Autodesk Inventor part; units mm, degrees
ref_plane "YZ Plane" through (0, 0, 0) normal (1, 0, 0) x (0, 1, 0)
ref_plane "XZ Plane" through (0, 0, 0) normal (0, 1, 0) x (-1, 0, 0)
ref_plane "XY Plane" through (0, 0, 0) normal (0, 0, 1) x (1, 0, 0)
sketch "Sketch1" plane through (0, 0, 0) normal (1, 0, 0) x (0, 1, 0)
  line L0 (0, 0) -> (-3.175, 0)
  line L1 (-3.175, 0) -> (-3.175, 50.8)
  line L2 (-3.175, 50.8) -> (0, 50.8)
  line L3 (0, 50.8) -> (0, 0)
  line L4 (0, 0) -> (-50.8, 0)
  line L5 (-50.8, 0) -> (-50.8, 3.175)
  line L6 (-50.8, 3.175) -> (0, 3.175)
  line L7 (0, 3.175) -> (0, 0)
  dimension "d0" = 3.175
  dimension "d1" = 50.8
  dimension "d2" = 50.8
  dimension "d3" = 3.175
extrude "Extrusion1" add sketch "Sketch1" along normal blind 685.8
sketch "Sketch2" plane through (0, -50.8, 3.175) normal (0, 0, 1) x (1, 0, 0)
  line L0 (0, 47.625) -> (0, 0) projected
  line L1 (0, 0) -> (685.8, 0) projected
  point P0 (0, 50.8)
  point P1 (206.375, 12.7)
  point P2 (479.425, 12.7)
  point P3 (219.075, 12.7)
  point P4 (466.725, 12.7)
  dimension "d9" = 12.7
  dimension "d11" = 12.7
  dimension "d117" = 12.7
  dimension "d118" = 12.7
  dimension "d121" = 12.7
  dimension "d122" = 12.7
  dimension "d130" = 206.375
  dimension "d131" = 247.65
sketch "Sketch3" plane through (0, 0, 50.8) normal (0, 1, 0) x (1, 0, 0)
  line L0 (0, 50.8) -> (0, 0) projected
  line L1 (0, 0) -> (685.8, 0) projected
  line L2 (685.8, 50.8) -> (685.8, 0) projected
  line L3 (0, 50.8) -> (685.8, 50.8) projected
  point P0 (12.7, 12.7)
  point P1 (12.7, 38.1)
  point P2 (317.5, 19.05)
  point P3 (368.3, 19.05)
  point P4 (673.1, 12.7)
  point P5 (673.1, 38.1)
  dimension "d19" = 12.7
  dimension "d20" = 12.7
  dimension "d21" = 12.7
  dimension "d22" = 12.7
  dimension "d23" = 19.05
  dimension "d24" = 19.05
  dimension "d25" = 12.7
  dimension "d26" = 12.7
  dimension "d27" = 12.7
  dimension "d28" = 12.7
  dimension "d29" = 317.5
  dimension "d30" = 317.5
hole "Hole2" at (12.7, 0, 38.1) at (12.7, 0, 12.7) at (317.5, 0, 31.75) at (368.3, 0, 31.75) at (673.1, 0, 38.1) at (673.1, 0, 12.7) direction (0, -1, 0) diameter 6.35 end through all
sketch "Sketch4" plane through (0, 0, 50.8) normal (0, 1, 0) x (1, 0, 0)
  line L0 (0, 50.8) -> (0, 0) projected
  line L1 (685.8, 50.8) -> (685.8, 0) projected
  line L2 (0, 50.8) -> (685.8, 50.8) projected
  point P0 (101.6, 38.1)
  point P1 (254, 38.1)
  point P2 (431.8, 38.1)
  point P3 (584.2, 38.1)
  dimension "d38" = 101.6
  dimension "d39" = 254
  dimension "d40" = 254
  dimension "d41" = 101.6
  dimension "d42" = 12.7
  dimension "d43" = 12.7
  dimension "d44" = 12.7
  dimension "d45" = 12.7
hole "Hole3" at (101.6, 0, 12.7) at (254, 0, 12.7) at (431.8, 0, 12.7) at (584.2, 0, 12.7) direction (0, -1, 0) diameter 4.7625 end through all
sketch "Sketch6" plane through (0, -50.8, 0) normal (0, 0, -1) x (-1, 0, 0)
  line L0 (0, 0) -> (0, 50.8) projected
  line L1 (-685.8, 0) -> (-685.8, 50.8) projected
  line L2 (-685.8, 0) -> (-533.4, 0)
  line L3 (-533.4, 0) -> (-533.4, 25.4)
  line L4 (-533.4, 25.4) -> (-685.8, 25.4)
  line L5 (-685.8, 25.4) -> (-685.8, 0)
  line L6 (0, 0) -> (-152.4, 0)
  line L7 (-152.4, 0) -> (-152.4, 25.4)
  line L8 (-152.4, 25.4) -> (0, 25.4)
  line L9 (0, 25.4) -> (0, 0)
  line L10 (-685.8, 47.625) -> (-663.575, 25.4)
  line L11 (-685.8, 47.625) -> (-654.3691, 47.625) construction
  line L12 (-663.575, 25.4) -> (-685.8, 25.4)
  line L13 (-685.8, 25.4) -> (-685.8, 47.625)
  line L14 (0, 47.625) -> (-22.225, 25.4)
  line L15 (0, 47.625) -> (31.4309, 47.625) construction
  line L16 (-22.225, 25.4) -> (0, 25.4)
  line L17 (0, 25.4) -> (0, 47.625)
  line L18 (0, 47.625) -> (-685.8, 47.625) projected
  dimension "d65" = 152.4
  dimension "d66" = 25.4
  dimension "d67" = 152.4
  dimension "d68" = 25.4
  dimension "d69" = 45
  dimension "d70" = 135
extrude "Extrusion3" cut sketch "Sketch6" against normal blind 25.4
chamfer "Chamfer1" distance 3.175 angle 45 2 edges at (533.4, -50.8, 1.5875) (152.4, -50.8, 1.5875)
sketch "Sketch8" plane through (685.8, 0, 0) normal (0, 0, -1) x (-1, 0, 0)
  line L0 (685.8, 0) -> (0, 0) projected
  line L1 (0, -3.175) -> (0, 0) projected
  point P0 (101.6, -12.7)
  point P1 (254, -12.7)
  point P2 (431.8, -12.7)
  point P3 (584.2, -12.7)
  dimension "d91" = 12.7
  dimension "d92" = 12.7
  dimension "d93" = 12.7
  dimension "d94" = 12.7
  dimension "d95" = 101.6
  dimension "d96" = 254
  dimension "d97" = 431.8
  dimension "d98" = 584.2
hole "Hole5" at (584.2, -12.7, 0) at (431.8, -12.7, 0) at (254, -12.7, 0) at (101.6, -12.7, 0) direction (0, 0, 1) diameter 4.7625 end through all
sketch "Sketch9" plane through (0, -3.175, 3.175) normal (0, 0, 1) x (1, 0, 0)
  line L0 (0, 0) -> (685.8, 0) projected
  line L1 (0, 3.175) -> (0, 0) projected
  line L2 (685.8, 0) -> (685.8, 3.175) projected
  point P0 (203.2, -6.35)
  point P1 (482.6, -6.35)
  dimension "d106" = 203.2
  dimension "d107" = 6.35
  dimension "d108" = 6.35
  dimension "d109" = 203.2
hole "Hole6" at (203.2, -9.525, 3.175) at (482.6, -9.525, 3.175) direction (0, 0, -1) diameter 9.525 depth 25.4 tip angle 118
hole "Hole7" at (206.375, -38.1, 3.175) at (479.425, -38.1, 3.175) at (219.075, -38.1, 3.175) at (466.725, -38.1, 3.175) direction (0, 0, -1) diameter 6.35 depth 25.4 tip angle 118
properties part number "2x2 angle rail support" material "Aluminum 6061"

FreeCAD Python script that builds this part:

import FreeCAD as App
import Part
import Sketcher
from FreeCAD import Vector
Q = App.Units.Quantity


def edges_at(feature, points):
    """Names of the edges that pass closest to the given points."""
    edges = feature.Shape.Edges
    near = lambda p: min(range(len(edges)), key=lambda i: edges[i].distToShape(Part.Vertex(*p))[0])
    return sorted({f"Edge{near(p) + 1}" for p in points})

doc = App.newDocument("Part")
params = doc.addObject("Spreadsheet::Sheet", "Params")
for row, (alias, value) in enumerate([
    ("sketch1_width", "2 in"),
    ("sketch1_width2", "0.125 in"),
    ("pad1_length", "27 in"),
    ("sketch2_diameter", "0.25 in"),
    ("hole_diameter", "0.25 in"),
    ("sketch3_diameter", "0.1875 in"),
    ("hole2_diameter", "0.1875 in"),
    ("sketch4_width", "6 in"),
    ("sketch4_height", "1 in"),
    ("sketch4_width2", "5.125 in"),
    ("pocket1_length", "1 in"),
    ("chamfer_size", "0.125 in"),
    ("sketch5_diameter", "0.1875 in"),
    ("hole3_diameter", "0.1875 in"),
    ("sketch6_diameter", "0.375 in"),
    ("hole4_diameter", "0.375 in"),
    ("hole4_depth", "1 in"),
    ("sketch7_diameter", "0.25 in"),
    ("hole5_diameter", "0.25 in"),
    ("hole5_depth", "1 in"),
], start=1):
    params.set(f"A{row}", alias)
    params.set(f"B{row}", "=" + value)
    params.setAlias(f"B{row}", alias)

body = doc.addObject("PartDesign::Body", "Body")

# Sketch on YZ plane
sketch1 = body.newObject("Sketcher::SketchObject", "Sketch")
sketch1.AttachmentSupport = (doc.getObject("YZ_Plane"), [""])
sketch1.MapMode = "FlatFace"
sketch1.addGeometry(Part.LineSegment(Vector(0, 0, 0), Vector(0, 50.8, 0)), False)
sketch1.addGeometry(Part.LineSegment(Vector(0, 50.8, 0), Vector(-3.175, 50.8, 0)), False)
sketch1.addGeometry(Part.LineSegment(Vector(-3.175, 50.8, 0), Vector(-3.175, 3.175, 0)), False)
sketch1.addGeometry(Part.LineSegment(Vector(-3.175, 3.175, 0), Vector(-50.8, 3.175, 0)), False)
sketch1.addGeometry(Part.LineSegment(Vector(-50.8, 3.175, 0), Vector(-50.8, 0, 0)), False)
sketch1.addGeometry(Part.LineSegment(Vector(-50.8, 0, 0), Vector(0, 0, 0)), False)
sketch1.addConstraint(Sketcher.Constraint("Coincident", 0, 2, 1, 1))
sketch1.addConstraint(Sketcher.Constraint("Coincident", 1, 2, 2, 1))
sketch1.addConstraint(Sketcher.Constraint("Coincident", 2, 2, 3, 1))
sketch1.addConstraint(Sketcher.Constraint("Coincident", 3, 2, 4, 1))
sketch1.addConstraint(Sketcher.Constraint("Coincident", 4, 2, 5, 1))
sketch1.addConstraint(Sketcher.Constraint("Coincident", 5, 2, 0, 1))
sketch1.addConstraint(Sketcher.Constraint("Vertical", 0))
sketch1.addConstraint(Sketcher.Constraint("Horizontal", 1))
sketch1.addConstraint(Sketcher.Constraint("Vertical", 2))
sketch1.addConstraint(Sketcher.Constraint("Horizontal", 3))
sketch1.addConstraint(Sketcher.Constraint("Vertical", 4))
sketch1.addConstraint(Sketcher.Constraint("Horizontal", 5))
sketch1.addConstraint(Sketcher.Constraint("Coincident", 5, 2, -1, 1))
sketch1.addConstraint(Sketcher.Constraint("Equal", 5, 0))
sketch1.addConstraint(Sketcher.Constraint("Equal", 3, 2))
sketch1.addConstraint(Sketcher.Constraint("DistanceX", 5, 1, 5, 2, Q("2 in")))
sketch1.addConstraint(Sketcher.Constraint("DistanceX", 1, 2, 1, 1, Q("0.125 in")))
sketch1.setExpression("Constraints[15]", "Params.sketch1_width")
sketch1.setExpression("Constraints[16]", "Params.sketch1_width2")
pad1 = body.newObject("PartDesign::Pad", "Pad")
pad1.Profile = sketch1
pad1.setExpression("Length", "Params.pad1_length")

# Sketch on XZ plane
sketch2 = body.newObject("Sketcher::SketchObject", "Sketch001")
sketch2.AttachmentSupport = (doc.getObject("XZ_Plane"), [""])
sketch2.MapMode = "FlatFace"
sketch2.addGeometry(Part.Circle(Vector(12.7, 38.1, 0), Vector(0, 0, 1), 3.175), False)
sketch2.addGeometry(Part.Circle(Vector(12.7, 12.7, 0), Vector(0, 0, 1), 3.175), False)
sketch2.addGeometry(Part.Circle(Vector(317.5, 31.75, 0), Vector(0, 0, 1), 3.175), False)
sketch2.addGeometry(Part.Circle(Vector(368.3, 31.75, 0), Vector(0, 0, 1), 3.175), False)
sketch2.addGeometry(Part.Circle(Vector(673.1, 38.1, 0), Vector(0, 0, 1), 3.175), False)
sketch2.addGeometry(Part.Circle(Vector(673.1, 12.7, 0), Vector(0, 0, 1), 3.175), False)
sketch2.addConstraint(Sketcher.Constraint("Equal", 0, 1))
sketch2.addConstraint(Sketcher.Constraint("Equal", 1, 2))
sketch2.addConstraint(Sketcher.Constraint("Equal", 2, 3))
sketch2.addConstraint(Sketcher.Constraint("Equal", 3, 4))
sketch2.addConstraint(Sketcher.Constraint("Equal", 4, 5))
sketch2.addConstraint(Sketcher.Constraint("Horizontal", 2, 3, 3, 3))
sketch2.addConstraint(Sketcher.Constraint("Horizontal", 0, 3, 4, 3))
sketch2.addConstraint(Sketcher.Constraint("Horizontal", 1, 3, 5, 3))
sketch2.addConstraint(Sketcher.Constraint("Vertical", 0, 3, 1, 3))
sketch2.addConstraint(Sketcher.Constraint("Vertical", 4, 3, 5, 3))
sketch2.addConstraint(Sketcher.Constraint("Diameter", 0, Q("0.25 in")))
sketch2.addConstraint(Sketcher.Constraint("DistanceY", 1, 3, 0, 3, Q("1 in")))
sketch2.addConstraint(Sketcher.Constraint("DistanceX", 0, 3, 2, 3, Q("12 in")))
sketch2.addConstraint(Sketcher.Constraint("DistanceX", 2, 3, 3, 3, Q("2 in")))
sketch2.addConstraint(Sketcher.Constraint("DistanceX", 3, 3, 4, 3, Q("12 in")))
sketch2.addConstraint(Sketcher.Constraint("DistanceX", -1, 1, 0, 3, Q("0.5 in")))
sketch2.addConstraint(Sketcher.Constraint("DistanceY", -1, 1, 0, 3, Q("1.5 in")))
sketch2.addConstraint(Sketcher.Constraint("DistanceY", -1, 1, 2, 3, Q("1.25 in")))
sketch2.setExpression("Constraints[10]", "Params.sketch2_diameter")
doc.recompute()
hole = body.newObject("PartDesign::Hole", "Hole")
hole.Profile = sketch2
hole.ThreadType = "None"
hole.setExpression("Diameter", "Params.hole_diameter")
hole.DepthType = "ThroughAll"
hole.Reversed = True

# Sketch on XZ plane
sketch3 = body.newObject("Sketcher::SketchObject", "Sketch002")
sketch3.AttachmentSupport = (doc.getObject("XZ_Plane"), [""])
sketch3.MapMode = "FlatFace"
sketch3.addGeometry(Part.Circle(Vector(101.6, 12.7, 0), Vector(0, 0, 1), 2.38125), False)
sketch3.addGeometry(Part.Circle(Vector(254, 12.7, 0), Vector(0, 0, 1), 2.38125), False)
sketch3.addGeometry(Part.Circle(Vector(431.8, 12.7, 0), Vector(0, 0, 1), 2.38125), False)
sketch3.addGeometry(Part.Circle(Vector(584.2, 12.7, 0), Vector(0, 0, 1), 2.38125), False)
sketch3.addConstraint(Sketcher.Constraint("Equal", 0, 1))
sketch3.addConstraint(Sketcher.Constraint("Equal", 1, 2))
sketch3.addConstraint(Sketcher.Constraint("Equal", 2, 3))
sketch3.addConstraint(Sketcher.Constraint("Horizontal", 0, 3, 1, 3))
sketch3.addConstraint(Sketcher.Constraint("Horizontal", 1, 3, 2, 3))
sketch3.addConstraint(Sketcher.Constraint("Horizontal", 2, 3, 3, 3))
sketch3.addConstraint(Sketcher.Constraint("Diameter", 0, Q("0.1875 in")))
sketch3.addConstraint(Sketcher.Constraint("DistanceX", -1, 1, 0, 3, Q("4 in")))
sketch3.addConstraint(Sketcher.Constraint("DistanceX", -1, 1, 1, 3, Q("10 in")))
sketch3.addConstraint(Sketcher.Constraint("DistanceX", -1, 1, 2, 3, Q("17 in")))
sketch3.addConstraint(Sketcher.Constraint("DistanceX", -1, 1, 3, 3, Q("23 in")))
sketch3.addConstraint(Sketcher.Constraint("DistanceY", -1, 1, 0, 3, Q("0.5 in")))
sketch3.setExpression("Constraints[6]", "Params.sketch3_diameter")
doc.recompute()
hole2 = body.newObject("PartDesign::Hole", "Hole001")
hole2.Profile = sketch3
hole2.ThreadType = "None"
hole2.setExpression("Diameter", "Params.hole2_diameter")
hole2.DepthType = "ThroughAll"
hole2.Reversed = True

# Sketch on XY plane
sketch4 = body.newObject("Sketcher::SketchObject", "Sketch003")
sketch4.AttachmentSupport = (doc.getObject("XY_Plane"), [""])
sketch4.MapMode = "FlatFace"
sketch4.addGeometry(Part.LineSegment(Vector(152.4, -50.8, 0), Vector(0, -50.8, 0)), False)
sketch4.addGeometry(Part.LineSegment(Vector(0, -50.8, 0), Vector(0, -3.175, 0)), False)
sketch4.addGeometry(Part.LineSegment(Vector(0, -3.175, 0), Vector(22.225, -25.4, 0)), False)
sketch4.addGeometry(Part.LineSegment(Vector(22.225, -25.4, 0), Vector(152.4, -25.4, 0)), False)
sketch4.addGeometry(Part.LineSegment(Vector(152.4, -25.4, 0), Vector(152.4, -50.8, 0)), False)
sketch4.addGeometry(Part.LineSegment(Vector(663.575, -25.4, 0), Vector(685.8, -3.175, 0)), False)
sketch4.addGeometry(Part.LineSegment(Vector(685.8, -3.175, 0), Vector(685.8, -50.8, 0)), False)
sketch4.addGeometry(Part.LineSegment(Vector(685.8, -50.8, 0), Vector(533.4, -50.8, 0)), False)
sketch4.addGeometry(Part.LineSegment(Vector(533.4, -50.8, 0), Vector(533.4, -25.4, 0)), False)
sketch4.addGeometry(Part.LineSegment(Vector(533.4, -25.4, 0), Vector(663.575, -25.4, 0)), False)
sketch4.addConstraint(Sketcher.Constraint("Coincident", 0, 2, 1, 1))
sketch4.addConstraint(Sketcher.Constraint("Coincident", 1, 2, 2, 1))
sketch4.addConstraint(Sketcher.Constraint("Coincident", 2, 2, 3, 1))
sketch4.addConstraint(Sketcher.Constraint("Coincident", 3, 2, 4, 1))
sketch4.addConstraint(Sketcher.Constraint("Coincident", 4, 2, 0, 1))
sketch4.addConstraint(Sketcher.Constraint("Coincident", 5, 2, 6, 1))
sketch4.addConstraint(Sketcher.Constraint("Coincident", 6, 2, 7, 1))
sketch4.addConstraint(Sketcher.Constraint("Coincident", 7, 2, 8, 1))
sketch4.addConstraint(Sketcher.Constraint("Coincident", 8, 2, 9, 1))
sketch4.addConstraint(Sketcher.Constraint("Coincident", 9, 2, 5, 1))
sketch4.addConstraint(Sketcher.Constraint("Horizontal", 0))
sketch4.addConstraint(Sketcher.Constraint("Vertical", 1))
sketch4.addConstraint(Sketcher.Constraint("Horizontal", 3))
sketch4.addConstraint(Sketcher.Constraint("Vertical", 4))
sketch4.addConstraint(Sketcher.Constraint("Vertical", 6))
sketch4.addConstraint(Sketcher.Constraint("Horizontal", 7))
sketch4.addConstraint(Sketcher.Constraint("Vertical", 8))
sketch4.addConstraint(Sketcher.Constraint("Horizontal", 9))
sketch4.addConstraint(Sketcher.Constraint("PointOnObject", 0, 2, -2))
sketch4.addConstraint(Sketcher.Constraint("Perpendicular", 2, 5))
sketch4.addConstraint(Sketcher.Constraint("Horizontal", 1, 2, 5, 2))
sketch4.addConstraint(Sketcher.Constraint("Horizontal", 4, 2, 6, 2))
sketch4.addConstraint(Sketcher.Constraint("Horizontal", 3, 2, 8, 2))
sketch4.addConstraint(Sketcher.Constraint("Equal", 0, 7))
sketch4.addConstraint(Sketcher.Constraint("Equal", 3, 9))
sketch4.addConstraint(Sketcher.Constraint("DistanceX", 0, 2, 0, 1, Q("6 in")))
sketch4.addConstraint(Sketcher.Constraint("DistanceY", 4, 2, 4, 1, Q("1 in")))
sketch4.addConstraint(Sketcher.Constraint("DistanceY", 2, 2, -1, 1, Q("1 in")))
sketch4.addConstraint(Sketcher.Constraint("DistanceX", -1, 1, 5, 2, Q("27 in")))
sketch4.addConstraint(Sketcher.Constraint("DistanceX", 3, 1, 3, 2, Q("5.125 in")))
sketch4.setExpression("Constraints[25]", "Params.sketch4_width")
sketch4.setExpression("Constraints[26]", "Params.sketch4_height")
sketch4.setExpression("Constraints[29]", "Params.sketch4_width2")
pocket1 = body.newObject("PartDesign::Pocket", "Pocket")
pocket1.Profile = sketch4
pocket1.setExpression("Length", "Params.pocket1_length")
pocket1.Reversed = True
doc.recompute()

chamfer = body.newObject("PartDesign::Chamfer", "Chamfer")
chamfer.Base = (pocket1, edges_at(pocket1, [(533.4, -50.8, 1.587), (152.4, -50.8, 1.587)]))
chamfer.setExpression("Size", "Params.chamfer_size")

# Sketch on XY plane
sketch5 = body.newObject("Sketcher::SketchObject", "Sketch004")
sketch5.AttachmentSupport = (doc.getObject("XY_Plane"), [""])
sketch5.MapMode = "FlatFace"
sketch5.addGeometry(Part.Circle(Vector(584.2, -12.7, 0), Vector(0, 0, 1), 2.38125), False)
sketch5.addGeometry(Part.Circle(Vector(431.8, -12.7, 0), Vector(0, 0, 1), 2.38125), False)
sketch5.addGeometry(Part.Circle(Vector(254, -12.7, 0), Vector(0, 0, 1), 2.38125), False)
sketch5.addGeometry(Part.Circle(Vector(101.6, -12.7, 0), Vector(0, 0, 1), 2.38125), False)
sketch5.addConstraint(Sketcher.Constraint("Equal", 0, 1))
sketch5.addConstraint(Sketcher.Constraint("Equal", 1, 2))
sketch5.addConstraint(Sketcher.Constraint("Equal", 2, 3))
sketch5.addConstraint(Sketcher.Constraint("Horizontal", 0, 3, 1, 3))
sketch5.addConstraint(Sketcher.Constraint("Horizontal", 1, 3, 2, 3))
sketch5.addConstraint(Sketcher.Constraint("Horizontal", 2, 3, 3, 3))
sketch5.addConstraint(Sketcher.Constraint("Diameter", 0, Q("0.1875 in")))
sketch5.addConstraint(Sketcher.Constraint("DistanceX", -1, 1, 0, 3, Q("23 in")))
sketch5.addConstraint(Sketcher.Constraint("DistanceX", -1, 1, 1, 3, Q("17 in")))
sketch5.addConstraint(Sketcher.Constraint("DistanceX", -1, 1, 2, 3, Q("10 in")))
sketch5.addConstraint(Sketcher.Constraint("DistanceX", -1, 1, 3, 3, Q("4 in")))
sketch5.addConstraint(Sketcher.Constraint("DistanceY", 0, 3, -1, 1, Q("0.5 in")))
sketch5.setExpression("Constraints[6]", "Params.sketch5_diameter")
doc.recompute()
hole3 = body.newObject("PartDesign::Hole", "Hole002")
hole3.Profile = sketch5
hole3.ThreadType = "None"
hole3.setExpression("Diameter", "Params.hole3_diameter")
hole3.DepthType = "ThroughAll"
hole3.Reversed = True

# Sketch on XY plane
sketch6 = body.newObject("Sketcher::SketchObject", "Sketch005")
sketch6.AttachmentSupport = (doc.getObject("XY_Plane"), [""])
sketch6.MapMode = "FlatFace"
sketch6.AttachmentOffset = App.Placement(Vector(0, 0, 0.125 * 25.4), App.Rotation())
sketch6.addGeometry(Part.Circle(Vector(203.2, -9.525, 0), Vector(0, 0, 1), 4.7625), False)
sketch6.addGeometry(Part.Circle(Vector(482.6, -9.525, 0), Vector(0, 0, 1), 4.7625), False)
sketch6.addConstraint(Sketcher.Constraint("Equal", 0, 1))
sketch6.addConstraint(Sketcher.Constraint("Horizontal", 0, 3, 1, 3))
sketch6.addConstraint(Sketcher.Constraint("Diameter", 0, Q("0.375 in")))
sketch6.addConstraint(Sketcher.Constraint("DistanceX", -1, 1, 0, 3, Q("8 in")))
sketch6.addConstraint(Sketcher.Constraint("DistanceX", -1, 1, 1, 3, Q("19 in")))
sketch6.addConstraint(Sketcher.Constraint("DistanceY", 0, 3, -1, 1, Q("0.375 in")))
sketch6.setExpression("Constraints[2]", "Params.sketch6_diameter")
doc.recompute()
hole4 = body.newObject("PartDesign::Hole", "Hole003")
hole4.Profile = sketch6
hole4.ThreadType = "None"
hole4.setExpression("Diameter", "Params.hole4_diameter")
hole4.DepthType = "Dimension"
hole4.setExpression("Depth", "Params.hole4_depth")
hole4.DrillPoint = "Angled"
hole4.DrillPointAngle = 118

# Sketch on XY plane
sketch7 = body.newObject("Sketcher::SketchObject", "Sketch006")
sketch7.AttachmentSupport = (doc.getObject("XY_Plane"), [""])
sketch7.MapMode = "FlatFace"
sketch7.AttachmentOffset = App.Placement(Vector(0, 0, 0.125 * 25.4), App.Rotation())
sketch7.addGeometry(Part.Circle(Vector(206.375, -38.1, 0), Vector(0, 0, 1), 3.175), False)
sketch7.addGeometry(Part.Circle(Vector(479.425, -38.1, 0), Vector(0, 0, 1), 3.175), False)
sketch7.addGeometry(Part.Circle(Vector(219.075, -38.1, 0), Vector(0, 0, 1), 3.175), False)
sketch7.addGeometry(Part.Circle(Vector(466.725, -38.1, 0), Vector(0, 0, 1), 3.175), False)
sketch7.addConstraint(Sketcher.Constraint("Equal", 0, 1))
sketch7.addConstraint(Sketcher.Constraint("Equal", 1, 2))
sketch7.addConstraint(Sketcher.Constraint("Equal", 2, 3))
sketch7.addConstraint(Sketcher.Constraint("Horizontal", 0, 3, 1, 3))
sketch7.addConstraint(Sketcher.Constraint("Horizontal", 1, 3, 2, 3))
sketch7.addConstraint(Sketcher.Constraint("Horizontal", 2, 3, 3, 3))
sketch7.addConstraint(Sketcher.Constraint("Diameter", 0, Q("0.25 in")))
sketch7.addConstraint(Sketcher.Constraint("DistanceY", 0, 3, -1, 1, Q("1.5 in")))
sketch7.addConstraint(Sketcher.Constraint("DistanceX", 0, 3, 2, 3, Q("0.5 in")))
sketch7.addConstraint(Sketcher.Constraint("DistanceX", 3, 3, 1, 3, Q("0.5 in")))
sketch7.addConstraint(Sketcher.Constraint("DistanceX", 0, 3, 1, 3, Q("10.75 in")))
sketch7.addConstraint(Sketcher.Constraint("DistanceX", -1, 1, 0, 3, Q("8.125 in")))
sketch7.setExpression("Constraints[6]", "Params.sketch7_diameter")
doc.recompute()
hole5 = body.newObject("PartDesign::Hole", "Hole004")
hole5.Profile = sketch7
hole5.ThreadType = "None"
hole5.setExpression("Diameter", "Params.hole5_diameter")
hole5.DepthType = "Dimension"
hole5.setExpression("Depth", "Params.hole5_depth")
hole5.DrillPoint = "Angled"
hole5.DrillPointAngle = 118

doc.recompute()
